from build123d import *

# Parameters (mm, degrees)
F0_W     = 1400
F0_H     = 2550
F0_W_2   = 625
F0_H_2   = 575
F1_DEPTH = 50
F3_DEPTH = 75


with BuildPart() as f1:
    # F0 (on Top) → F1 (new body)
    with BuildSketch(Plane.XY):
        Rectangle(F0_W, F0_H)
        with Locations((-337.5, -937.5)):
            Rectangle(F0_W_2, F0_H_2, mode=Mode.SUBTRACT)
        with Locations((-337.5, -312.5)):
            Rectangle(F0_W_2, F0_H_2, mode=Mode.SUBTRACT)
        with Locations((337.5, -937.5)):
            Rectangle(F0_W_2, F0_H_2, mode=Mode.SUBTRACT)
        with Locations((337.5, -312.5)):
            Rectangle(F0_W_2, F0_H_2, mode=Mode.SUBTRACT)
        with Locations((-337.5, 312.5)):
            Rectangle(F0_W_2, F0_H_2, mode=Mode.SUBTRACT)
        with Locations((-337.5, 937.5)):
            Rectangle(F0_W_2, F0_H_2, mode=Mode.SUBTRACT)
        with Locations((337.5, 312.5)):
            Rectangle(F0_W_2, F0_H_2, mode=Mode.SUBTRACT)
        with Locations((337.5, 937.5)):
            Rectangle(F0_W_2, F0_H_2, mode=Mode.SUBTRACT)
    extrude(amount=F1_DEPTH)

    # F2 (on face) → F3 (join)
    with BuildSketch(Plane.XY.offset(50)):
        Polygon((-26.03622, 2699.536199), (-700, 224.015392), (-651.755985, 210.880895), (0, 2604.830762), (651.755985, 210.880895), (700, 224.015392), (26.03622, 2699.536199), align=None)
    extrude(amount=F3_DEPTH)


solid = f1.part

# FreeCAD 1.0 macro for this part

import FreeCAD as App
import Part
import Sketcher
Q = App.Units.Quantity


def add_polygon(sketch, points):
    """Adds a closed chain of lines whose ends are joined by coincident constraints."""
    first, n = sketch.GeometryCount, len(points)
    for a, b in zip(points, points[1:] + points[:1]):
        sketch.addGeometry(Part.LineSegment(App.Vector(*a, 0), App.Vector(*b, 0)), False)
    for i in range(n):
        sketch.addConstraint(Sketcher.Constraint("Coincident", first + i, 2, first + (i + 1) % n, 1))

doc = App.newDocument("Part")
body = doc.addObject("PartDesign::Body", "Body")

# Sketch on XY plane
sketch1 = body.newObject("Sketcher::SketchObject", "Sketch")
sketch1.AttachmentSupport = (doc.getObject("XY_Plane"), [""])
sketch1.MapMode = "FlatFace"
add_polygon(sketch1, [(-700, 1275), (-700, -1275), (700, -1275), (700, 1275)])  # lines 0-3
add_polygon(sketch1, [(-25, -1225), (-650, -1225), (-650, -650), (-25, -650)])  # lines 4-7
add_polygon(sketch1, [(-25, -600), (-650, -600), (-650, -25), (-25, -25)])  # lines 8-11
add_polygon(sketch1, [(650, -1225), (25, -1225), (25, -650), (650, -650)])  # lines 12-15
add_polygon(sketch1, [(650, -600), (25, -600), (25, -25), (650, -25)])  # lines 16-19
add_polygon(sketch1, [(-25, 25), (-650, 25), (-650, 600), (-25, 600)])  # lines 20-23
add_polygon(sketch1, [(-25, 650), (-650, 650), (-650, 1225), (-25, 1225)])  # lines 24-27
add_polygon(sketch1, [(650, 25), (25, 25), (25, 600), (650, 600)])  # lines 28-31
add_polygon(sketch1, [(650, 650), (25, 650), (25, 1225), (650, 1225)])  # lines 32-35
sketch1.addConstraint([
    Sketcher.Constraint("Vertical", 0),
    Sketcher.Constraint("Horizontal", 1),
    Sketcher.Constraint("Vertical", 2),
    Sketcher.Constraint("Horizontal", 3),
    Sketcher.Constraint("Horizontal", 4),
    Sketcher.Constraint("Vertical", 5),
    Sketcher.Constraint("Horizontal", 6),
    Sketcher.Constraint("Vertical", 7),
    Sketcher.Constraint("Horizontal", 8),
    Sketcher.Constraint("Vertical", 9),
    Sketcher.Constraint("Horizontal", 10),
    Sketcher.Constraint("Vertical", 11),
    Sketcher.Constraint("Horizontal", 12),
    Sketcher.Constraint("Vertical", 13),
    Sketcher.Constraint("Horizontal", 14),
    Sketcher.Constraint("Vertical", 15),
    Sketcher.Constraint("Horizontal", 16),
    Sketcher.Constraint("Vertical", 17),
    Sketcher.Constraint("Horizontal", 18),
    Sketcher.Constraint("Vertical", 19),
    Sketcher.Constraint("Horizontal", 20),
    Sketcher.Constraint("Vertical", 21),
    Sketcher.Constraint("Horizontal", 22),
    Sketcher.Constraint("Vertical", 23),
    Sketcher.Constraint("Horizontal", 24),
    Sketcher.Constraint("Vertical", 25),
    Sketcher.Constraint("Horizontal", 26),
    Sketcher.Constraint("Vertical", 27),
    Sketcher.Constraint("Horizontal", 28),
    Sketcher.Constraint("Vertical", 29),
    Sketcher.Constraint("Horizontal", 30),
    Sketcher.Constraint("Vertical", 31),
    Sketcher.Constraint("Horizontal", 32),
    Sketcher.Constraint("Vertical", 33),
    Sketcher.Constraint("Horizontal", 34),
    Sketcher.Constraint("Vertical", 35),
    Sketcher.Constraint("Symmetric", 0, 2, 2, 2, -1, 1),
    Sketcher.Constraint("Symmetric", 18, 2, 20, 2, -1, 1),
    Sketcher.Constraint("Symmetric", 16, 2, 22, 2, -1, 1),
    Sketcher.Constraint("Symmetric", 14, 2, 24, 2, -1, 1),
    Sketcher.Constraint("Symmetric", 12, 2, 26, 2, -1, 1),
    Sketcher.Constraint("Symmetric", 10, 2, 28, 2, -1, 1),
    Sketcher.Constraint("Symmetric", 8, 2, 30, 2, -1, 1),
    Sketcher.Constraint("Symmetric", 6, 2, 32, 2, -1, 1),
    Sketcher.Constraint("Symmetric", 4, 2, 34, 2, -1, 1),
    Sketcher.Constraint("Symmetric", 7, 2, 12, 2, -2),
    Sketcher.Constraint("Symmetric", 5, 2, 14, 2, -2),
    Sketcher.Constraint("Symmetric", 11, 2, 16, 2, -2),
    Sketcher.Constraint("Symmetric", 9, 2, 18, 2, -2),
    Sketcher.Constraint("Vertical", 5, 2, 8, 2),
    Sketcher.Constraint("Vertical", 7, 2, 10, 2),
    Sketcher.Constraint("Equal", 7, 9),
    Sketcher.Constraint("DistanceX", 1, 1, 1, 2, Q("1400 mm")),
    Sketcher.Constraint("DistanceX", 4, 2, 4, 1, Q("625 mm")),
    Sketcher.Constraint("DistanceY", 0, 2, 0, 1, Q("2550 mm")),
    Sketcher.Constraint("DistanceY", 5, 1, 5, 2, Q("575 mm")),
    Sketcher.Constraint("DistanceX", 4, 2, -1, 1, Q("650 mm")),
    Sketcher.Constraint("DistanceY", 4, 2, -1, 1, Q("1225 mm")),
    Sketcher.Constraint("DistanceY", 8, 2, -1, 1, Q("600 mm")),
])
pad1 = body.newObject("PartDesign::Pad", "Pad")
pad1.Profile = sketch1
pad1.Length = 50

# Sketch on XY plane
sketch2 = body.newObject("Sketcher::SketchObject", "Sketch001")
sketch2.AttachmentSupport = (doc.getObject("XY_Plane"), [""])
sketch2.MapMode = "FlatFace"
sketch2.AttachmentOffset = App.Placement(App.Vector(0, 0, 50), App.Rotation())
add_polygon(sketch2, [(-26, 2700), (-700, 224), (-652, 211), (0, 2605), (652, 211), (700, 224), (26, 2700)])  # lines 0-6
sketch2.addConstraint([
    Sketcher.Constraint("Horizontal", 6),
    Sketcher.Constraint("Symmetric", 1, 2, 3, 2, -2),
    Sketcher.Constraint("Symmetric", 0, 2, 4, 2, -2),
    Sketcher.Constraint("PointOnObject", 2, 2, -2),
    Sketcher.Constraint("Perpendicular", 0, 1),
    Sketcher.Constraint("Perpendicular", 1, 2),
    Sketcher.Constraint("Perpendicular", 4, 5),
    Sketcher.Constraint("Distance", 1, Q("50 mm")),
    Sketcher.Constraint("DistanceX", 0, 2, -1, 1, Q("700 mm")),
    Sketcher.Constraint("DistanceX", 6, 2, 6, 1, Q("52.07244 mm")),
    Sketcher.Constraint("DistanceY", -1, 1, 5, 2, Q("2699.536199 mm")),
    Sketcher.Constraint("Distance", 2, Q("2481.084809 mm")),
])
pad2 = body.newObject("PartDesign::Pad", "Pad001")
pad2.Profile = sketch2
pad2.Length = 75

doc.recompute()
